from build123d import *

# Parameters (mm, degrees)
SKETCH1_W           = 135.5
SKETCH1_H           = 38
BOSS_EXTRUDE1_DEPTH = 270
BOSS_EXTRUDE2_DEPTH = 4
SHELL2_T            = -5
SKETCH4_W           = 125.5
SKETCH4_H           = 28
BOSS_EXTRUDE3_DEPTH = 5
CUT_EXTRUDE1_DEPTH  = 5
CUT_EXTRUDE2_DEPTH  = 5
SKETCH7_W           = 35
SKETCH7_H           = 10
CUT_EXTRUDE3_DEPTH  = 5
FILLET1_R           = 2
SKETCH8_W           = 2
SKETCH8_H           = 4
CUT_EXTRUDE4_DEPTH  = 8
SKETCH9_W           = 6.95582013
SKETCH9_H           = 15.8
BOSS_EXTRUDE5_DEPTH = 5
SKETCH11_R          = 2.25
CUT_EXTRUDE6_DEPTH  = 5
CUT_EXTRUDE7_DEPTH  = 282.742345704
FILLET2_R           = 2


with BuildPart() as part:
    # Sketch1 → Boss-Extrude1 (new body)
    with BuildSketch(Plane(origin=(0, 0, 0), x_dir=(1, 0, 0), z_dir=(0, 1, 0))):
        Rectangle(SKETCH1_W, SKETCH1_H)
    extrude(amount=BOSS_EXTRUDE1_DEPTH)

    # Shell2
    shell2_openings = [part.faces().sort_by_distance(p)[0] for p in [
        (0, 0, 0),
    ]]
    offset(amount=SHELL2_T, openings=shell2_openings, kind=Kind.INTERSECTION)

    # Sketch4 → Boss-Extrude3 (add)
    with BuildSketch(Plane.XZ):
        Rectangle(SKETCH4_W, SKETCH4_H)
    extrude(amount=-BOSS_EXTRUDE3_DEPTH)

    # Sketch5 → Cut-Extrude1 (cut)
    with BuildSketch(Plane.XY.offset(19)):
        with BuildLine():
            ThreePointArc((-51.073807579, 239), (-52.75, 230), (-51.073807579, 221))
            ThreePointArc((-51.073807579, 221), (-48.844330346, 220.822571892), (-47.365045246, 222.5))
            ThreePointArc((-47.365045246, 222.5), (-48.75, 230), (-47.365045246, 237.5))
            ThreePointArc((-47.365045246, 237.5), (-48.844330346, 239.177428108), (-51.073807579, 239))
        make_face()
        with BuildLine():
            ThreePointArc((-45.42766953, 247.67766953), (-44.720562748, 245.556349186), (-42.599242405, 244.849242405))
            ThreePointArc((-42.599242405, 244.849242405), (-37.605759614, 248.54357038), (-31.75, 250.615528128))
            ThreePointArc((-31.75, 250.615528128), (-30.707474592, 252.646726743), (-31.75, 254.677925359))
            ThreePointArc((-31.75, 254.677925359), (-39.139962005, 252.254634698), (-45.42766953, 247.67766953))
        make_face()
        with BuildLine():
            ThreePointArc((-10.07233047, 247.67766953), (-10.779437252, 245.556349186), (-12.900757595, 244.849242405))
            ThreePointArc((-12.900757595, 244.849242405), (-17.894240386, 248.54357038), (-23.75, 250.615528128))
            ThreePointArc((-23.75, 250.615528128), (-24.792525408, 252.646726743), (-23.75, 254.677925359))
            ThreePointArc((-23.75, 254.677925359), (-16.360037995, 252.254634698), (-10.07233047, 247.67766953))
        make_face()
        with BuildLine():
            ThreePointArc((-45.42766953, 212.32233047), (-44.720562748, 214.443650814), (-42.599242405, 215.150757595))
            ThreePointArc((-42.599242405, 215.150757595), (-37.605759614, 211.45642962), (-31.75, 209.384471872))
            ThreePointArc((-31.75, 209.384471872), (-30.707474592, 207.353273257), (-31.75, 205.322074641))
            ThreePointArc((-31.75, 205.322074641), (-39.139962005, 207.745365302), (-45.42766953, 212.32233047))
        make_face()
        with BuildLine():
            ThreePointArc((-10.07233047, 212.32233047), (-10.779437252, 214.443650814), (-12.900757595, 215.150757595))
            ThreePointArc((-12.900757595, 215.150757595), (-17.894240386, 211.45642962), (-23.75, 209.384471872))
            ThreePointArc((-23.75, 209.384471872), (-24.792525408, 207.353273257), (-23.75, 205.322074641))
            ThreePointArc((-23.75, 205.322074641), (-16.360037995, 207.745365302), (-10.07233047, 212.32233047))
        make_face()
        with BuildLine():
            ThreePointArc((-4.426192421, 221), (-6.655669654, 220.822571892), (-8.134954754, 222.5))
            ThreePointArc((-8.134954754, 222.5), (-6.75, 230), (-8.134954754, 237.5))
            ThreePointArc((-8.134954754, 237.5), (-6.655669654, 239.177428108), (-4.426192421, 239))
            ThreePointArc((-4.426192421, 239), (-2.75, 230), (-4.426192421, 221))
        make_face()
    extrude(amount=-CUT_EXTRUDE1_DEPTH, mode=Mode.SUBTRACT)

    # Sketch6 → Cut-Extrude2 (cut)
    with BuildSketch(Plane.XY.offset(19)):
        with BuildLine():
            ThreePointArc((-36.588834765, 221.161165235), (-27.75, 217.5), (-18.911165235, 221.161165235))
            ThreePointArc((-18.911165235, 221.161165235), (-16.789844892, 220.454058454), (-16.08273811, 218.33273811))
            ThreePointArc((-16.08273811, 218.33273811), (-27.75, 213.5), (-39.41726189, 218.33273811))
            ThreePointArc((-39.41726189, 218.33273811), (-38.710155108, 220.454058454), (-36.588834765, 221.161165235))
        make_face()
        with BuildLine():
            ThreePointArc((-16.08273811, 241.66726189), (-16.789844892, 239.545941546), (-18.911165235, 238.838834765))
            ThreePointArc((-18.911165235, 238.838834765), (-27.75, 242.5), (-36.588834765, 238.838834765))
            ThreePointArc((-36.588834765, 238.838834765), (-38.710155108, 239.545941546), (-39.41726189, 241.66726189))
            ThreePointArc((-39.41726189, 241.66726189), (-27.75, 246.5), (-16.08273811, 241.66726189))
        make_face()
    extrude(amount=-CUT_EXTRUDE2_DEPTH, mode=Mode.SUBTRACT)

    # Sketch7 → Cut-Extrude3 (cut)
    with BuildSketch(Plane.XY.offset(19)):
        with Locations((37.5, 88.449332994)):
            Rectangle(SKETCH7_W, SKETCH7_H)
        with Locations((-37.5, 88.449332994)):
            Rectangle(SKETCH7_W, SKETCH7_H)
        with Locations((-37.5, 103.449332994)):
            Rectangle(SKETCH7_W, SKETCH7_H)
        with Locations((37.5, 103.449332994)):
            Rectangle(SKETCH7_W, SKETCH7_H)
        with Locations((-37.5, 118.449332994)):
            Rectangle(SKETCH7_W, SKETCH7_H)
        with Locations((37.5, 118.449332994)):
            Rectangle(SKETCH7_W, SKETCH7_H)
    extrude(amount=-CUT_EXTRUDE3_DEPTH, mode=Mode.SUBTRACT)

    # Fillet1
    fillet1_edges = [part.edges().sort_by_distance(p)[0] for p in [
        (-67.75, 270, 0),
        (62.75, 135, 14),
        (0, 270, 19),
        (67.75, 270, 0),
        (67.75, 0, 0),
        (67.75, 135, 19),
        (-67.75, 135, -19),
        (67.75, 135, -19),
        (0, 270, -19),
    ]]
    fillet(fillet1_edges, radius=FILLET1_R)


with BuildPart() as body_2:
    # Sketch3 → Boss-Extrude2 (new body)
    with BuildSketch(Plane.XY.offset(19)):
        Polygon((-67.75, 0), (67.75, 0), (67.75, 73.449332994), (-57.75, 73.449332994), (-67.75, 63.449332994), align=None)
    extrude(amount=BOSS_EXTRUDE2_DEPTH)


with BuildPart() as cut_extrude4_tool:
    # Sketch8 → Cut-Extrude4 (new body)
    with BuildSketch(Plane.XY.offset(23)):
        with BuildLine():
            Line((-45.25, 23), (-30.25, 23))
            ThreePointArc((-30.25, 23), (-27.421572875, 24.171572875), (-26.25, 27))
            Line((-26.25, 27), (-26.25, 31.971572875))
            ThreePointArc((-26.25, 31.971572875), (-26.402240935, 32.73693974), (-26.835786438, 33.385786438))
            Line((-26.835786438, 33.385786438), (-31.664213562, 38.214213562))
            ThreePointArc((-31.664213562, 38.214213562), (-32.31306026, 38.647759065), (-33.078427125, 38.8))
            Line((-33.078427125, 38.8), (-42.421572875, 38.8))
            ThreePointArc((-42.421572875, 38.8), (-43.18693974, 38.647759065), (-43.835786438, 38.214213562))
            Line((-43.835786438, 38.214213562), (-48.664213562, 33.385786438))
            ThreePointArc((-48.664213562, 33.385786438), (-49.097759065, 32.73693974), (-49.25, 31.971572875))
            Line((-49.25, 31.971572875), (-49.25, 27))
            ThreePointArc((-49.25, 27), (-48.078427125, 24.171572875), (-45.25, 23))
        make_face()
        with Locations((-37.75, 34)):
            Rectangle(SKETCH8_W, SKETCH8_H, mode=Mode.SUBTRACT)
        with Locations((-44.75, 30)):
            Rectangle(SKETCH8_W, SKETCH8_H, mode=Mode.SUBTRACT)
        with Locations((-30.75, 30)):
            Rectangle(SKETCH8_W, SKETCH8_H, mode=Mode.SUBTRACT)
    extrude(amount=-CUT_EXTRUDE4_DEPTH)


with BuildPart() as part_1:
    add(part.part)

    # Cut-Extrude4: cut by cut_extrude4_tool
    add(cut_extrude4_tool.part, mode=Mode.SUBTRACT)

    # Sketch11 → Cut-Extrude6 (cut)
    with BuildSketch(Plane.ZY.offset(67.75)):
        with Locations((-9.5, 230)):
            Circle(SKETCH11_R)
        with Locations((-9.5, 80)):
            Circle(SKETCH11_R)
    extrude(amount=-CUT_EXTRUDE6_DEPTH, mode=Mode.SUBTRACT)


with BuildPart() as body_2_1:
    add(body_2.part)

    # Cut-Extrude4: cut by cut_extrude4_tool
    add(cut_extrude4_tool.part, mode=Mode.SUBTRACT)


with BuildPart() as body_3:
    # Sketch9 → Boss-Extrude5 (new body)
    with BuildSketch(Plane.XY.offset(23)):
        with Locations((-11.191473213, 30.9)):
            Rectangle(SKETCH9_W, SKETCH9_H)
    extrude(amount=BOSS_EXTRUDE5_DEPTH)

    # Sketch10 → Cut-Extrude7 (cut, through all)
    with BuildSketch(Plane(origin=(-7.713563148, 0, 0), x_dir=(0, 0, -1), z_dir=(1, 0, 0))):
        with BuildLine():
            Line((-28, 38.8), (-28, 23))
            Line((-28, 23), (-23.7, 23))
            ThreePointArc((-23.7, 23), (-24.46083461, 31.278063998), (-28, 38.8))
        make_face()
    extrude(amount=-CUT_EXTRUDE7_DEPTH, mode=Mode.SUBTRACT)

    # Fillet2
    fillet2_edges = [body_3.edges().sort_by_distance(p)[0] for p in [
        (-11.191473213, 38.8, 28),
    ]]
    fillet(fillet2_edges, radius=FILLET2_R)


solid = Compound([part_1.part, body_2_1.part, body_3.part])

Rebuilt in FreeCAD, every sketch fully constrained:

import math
import FreeCAD as App
import Part
import Sketcher
from FreeCAD import Vector
Q = App.Units.Quantity


def edges_at(feature, points):
    """Names of the edges that pass closest to the given points."""
    edges = feature.Shape.Edges
    near = lambda p: min(range(len(edges)), key=lambda i: edges[i].distToShape(Part.Vertex(*p))[0])
    return sorted({f"Edge{near(p) + 1}" for p in points})


def faces_at(feature, points):
    """Names of the faces that lie closest to the given points."""
    faces = feature.Shape.Faces
    near = lambda p: min(range(len(faces)), key=lambda i: faces[i].distToShape(Part.Vertex(*p))[0])
    return sorted({f"Face{near(p) + 1}" for p in points})

doc = App.newDocument("Part")
body = doc.addObject("PartDesign::Body", "Body")

# Sketch on XZ plane
sketch1 = body.newObject("Sketcher::SketchObject", "Sketch")
sketch1.AttachmentSupport = (doc.getObject("XZ_Plane"), [""])
sketch1.MapMode = "FlatFace"
sketch1.addGeometry(Part.LineSegment(Vector(-67.75, -19, 0), Vector(-67.75, 19, 0)), False)
sketch1.addGeometry(Part.LineSegment(Vector(-67.75, 19, 0), Vector(67.75, 19, 0)), False)
sketch1.addGeometry(Part.LineSegment(Vector(67.75, 19, 0), Vector(67.75, -19, 0)), False)
sketch1.addGeometry(Part.LineSegment(Vector(67.75, -19, 0), Vector(-67.75, -19, 0)), False)
sketch1.addConstraint(Sketcher.Constraint("Coincident", 0, 2, 1, 1))
sketch1.addConstraint(Sketcher.Constraint("Coincident", 1, 2, 2, 1))
sketch1.addConstraint(Sketcher.Constraint("Coincident", 2, 2, 3, 1))
sketch1.addConstraint(Sketcher.Constraint("Coincident", 3, 2, 0, 1))
sketch1.addConstraint(Sketcher.Constraint("Vertical", 0))
sketch1.addConstraint(Sketcher.Constraint("Horizontal", 1))
sketch1.addConstraint(Sketcher.Constraint("Vertical", 2))
sketch1.addConstraint(Sketcher.Constraint("Horizontal", 3))
sketch1.addConstraint(Sketcher.Constraint("Symmetric", 0, 2, 2, 2, -1, 1))
sketch1.addConstraint(Sketcher.Constraint("DistanceY", 0, 1, 0, 2, 38.0))
sketch1.addConstraint(Sketcher.Constraint("DistanceX", 1, 1, 1, 2, 135.5))
pad1 = body.newObject("PartDesign::Pad", "Pad")
pad1.Profile = sketch1
pad1.Length = 270
pad1.Reversed = True
doc.recompute()

thickness = body.newObject("PartDesign::Thickness", "Thickness")
thickness.Base = (pad1, faces_at(pad1, [(0, 0, 0)]))
thickness.Value = 5
thickness.Reversed = True
thickness.Join = "Intersection"

# Sketch on XZ plane
sketch2 = body.newObject("Sketcher::SketchObject", "Sketch001")
sketch2.AttachmentSupport = (doc.getObject("XZ_Plane"), [""])
sketch2.MapMode = "FlatFace"
sketch2.addGeometry(Part.LineSegment(Vector(-62.75, 14, 0), Vector(-62.75, -14, 0)), False)
sketch2.addGeometry(Part.LineSegment(Vector(-62.75, -14, 0), Vector(62.75, -14, 0)), False)
sketch2.addGeometry(Part.LineSegment(Vector(62.75, -14, 0), Vector(62.75, 14, 0)), False)
sketch2.addGeometry(Part.LineSegment(Vector(62.75, 14, 0), Vector(-62.75, 14, 0)), False)
sketch2.addConstraint(Sketcher.Constraint("Coincident", 0, 2, 1, 1))
sketch2.addConstraint(Sketcher.Constraint("Coincident", 1, 2, 2, 1))
sketch2.addConstraint(Sketcher.Constraint("Coincident", 2, 2, 3, 1))
sketch2.addConstraint(Sketcher.Constraint("Coincident", 3, 2, 0, 1))
sketch2.addConstraint(Sketcher.Constraint("Vertical", 0))
sketch2.addConstraint(Sketcher.Constraint("Horizontal", 1))
sketch2.addConstraint(Sketcher.Constraint("Vertical", 2))
sketch2.addConstraint(Sketcher.Constraint("Horizontal", 3))
sketch2.addConstraint(Sketcher.Constraint("Symmetric", 0, 2, 2, 2, -1, 1))
sketch2.addConstraint(Sketcher.Constraint("DistanceY", 0, 2, 0, 1, 28.0))
sketch2.addConstraint(Sketcher.Constraint("DistanceX", 1, 1, 1, 2, 125.5))
pad2 = body.newObject("PartDesign::Pad", "Pad001")
pad2.Profile = sketch2
pad2.Length = 5
pad2.Reversed = True

# Sketch on XY plane
sketch3 = body.newObject("Sketcher::SketchObject", "Sketch002")
sketch3.AttachmentSupport = (doc.getObject("XY_Plane"), [""])
sketch3.MapMode = "FlatFace"
sketch3.AttachmentOffset = App.Placement(Vector(0, 0, 19), App.Rotation())
sketch3.addGeometry(Part.ArcOfCircle(Part.Circle(Vector(-27.75, 230, 0), Vector(0, 0, 1), 25), math.radians(158.899804), math.radians(201.100196)), False)
sketch3.addGeometry(Part.ArcOfCircle(Part.Circle(Vector(-49.781686, 223.140192, 0), Vector(0, 0, 1), 2.5), math.radians(-121.121092), math.radians(-14.837404)), False)
sketch3.addGeometry(Part.ArcOfCircle(Part.Circle(Vector(-27.75, 230, 0), Vector(0, 0, 1), 21), math.radians(159.075168), math.radians(200.924832)), False)
sketch3.addGeometry(Part.ArcOfCircle(Part.Circle(Vector(-49.781686, 236.859808, 0), Vector(0, 0, 1), 2.5), math.radians(14.837404), math.radians(121.121092)), False)
sketch3.addGeometry(Part.ArcOfCircle(Part.Circle(Vector(-42.952796, 247.324116, 0), Vector(0, 0, 1), 2.5), math.radians(171.869898), math.radians(278.130102)), False)
sketch3.addGeometry(Part.ArcOfCircle(Part.Circle(Vector(-27.75, 230, 0), Vector(0, 0, 1), 21), math.radians(100.980575), math.radians(135)), False)
sketch3.addGeometry(Part.ArcOfCircle(Part.Circle(Vector(-33.207475, 252.646727, 0), Vector(0, 0, 1), 2.5), math.radians(-54.338892), math.radians(54.338892)), False)
sketch3.addGeometry(Part.ArcOfCircle(Part.Circle(Vector(-27.75, 230, 0), Vector(0, 0, 1), 25), math.radians(99.206896), math.radians(135)), False)
sketch3.addGeometry(Part.ArcOfCircle(Part.Circle(Vector(-12.547204, 247.324116, 0), Vector(0, 0, 1), 2.5), math.radians(-98.130102), math.radians(8.130102)), False)
sketch3.addGeometry(Part.ArcOfCircle(Part.Circle(Vector(-27.75, 230, 0), Vector(0, 0, 1), 25), math.radians(45), math.radians(80.793104)), False)
sketch3.addGeometry(Part.ArcOfCircle(Part.Circle(Vector(-22.292525, 252.646727, 0), Vector(0, 0, 1), 2.5), math.radians(125.661108), math.radians(234.338892)), False)
sketch3.addGeometry(Part.ArcOfCircle(Part.Circle(Vector(-27.75, 230, 0), Vector(0, 0, 1), 21), math.radians(45), math.radians(79.019425)), False)
sketch3.addGeometry(Part.ArcOfCircle(Part.Circle(Vector(-42.952796, 212.675884, 0), Vector(0, 0, 1), 2.5), math.radians(81.869898), math.radians(188.130102)), False)
sketch3.addGeometry(Part.ArcOfCircle(Part.Circle(Vector(-27.75, 230, 0), Vector(0, 0, 1), 25), math.radians(-135), math.radians(-99.206896)), False)
sketch3.addGeometry(Part.ArcOfCircle(Part.Circle(Vector(-33.207475, 207.353273, 0), Vector(0, 0, 1), 2.5), math.radians(-54.338892), math.radians(54.338892)), False)
sketch3.addGeometry(Part.ArcOfCircle(Part.Circle(Vector(-27.75, 230, 0), Vector(0, 0, 1), 21), math.radians(-135), math.radians(-100.980575)), False)
sketch3.addGeometry(Part.ArcOfCircle(Part.Circle(Vector(-12.547204, 212.675884, 0), Vector(0, 0, 1), 2.5), math.radians(-8.130102), math.radians(98.130102)), False)
sketch3.addGeometry(Part.ArcOfCircle(Part.Circle(Vector(-27.75, 230, 0), Vector(0, 0, 1), 21), math.radians(-79.019425), math.radians(-45)), False)
sketch3.addGeometry(Part.ArcOfCircle(Part.Circle(Vector(-22.292525, 207.353273, 0), Vector(0, 0, 1), 2.5), math.radians(125.661108), math.radians(234.338892)), False)
sketch3.addGeometry(Part.ArcOfCircle(Part.Circle(Vector(-27.75, 230, 0), Vector(0, 0, 1), 25), math.radians(-80.793104), math.radians(-45)), False)
sketch3.addGeometry(Part.ArcOfCircle(Part.Circle(Vector(-5.718314, 223.140192, 0), Vector(0, 0, 1), 2.5), math.radians(-165.162596), math.radians(-58.878908)), False)
sketch3.addGeometry(Part.ArcOfCircle(Part.Circle(Vector(-27.75, 230, 0), Vector(0, 0, 1), 25), math.radians(-21.100196), math.radians(21.100196)), False)
sketch3.addGeometry(Part.ArcOfCircle(Part.Circle(Vector(-5.718314, 236.859808, 0), Vector(0, 0, 1), 2.5), math.radians(58.878908), math.radians(165.162596)), False)
sketch3.addGeometry(Part.ArcOfCircle(Part.Circle(Vector(-27.75, 230, 0), Vector(0, 0, 1), 21), math.radians(-20.924832), math.radians(20.924832)), False)
sketch3.addConstraint(Sketcher.Constraint("Coincident", 0, 2, 1, 1))
sketch3.addConstraint(Sketcher.Constraint("Coincident", 1, 2, 2, 2))
sketch3.addConstraint(Sketcher.Constraint("Coincident", 2, 1, 3, 1))
sketch3.addConstraint(Sketcher.Constraint("Coincident", 3, 2, 0, 1))
sketch3.addConstraint(Sketcher.Constraint("Coincident", 4, 2, 5, 2))
sketch3.addConstraint(Sketcher.Constraint("Coincident", 5, 1, 6, 1))
sketch3.addConstraint(Sketcher.Constraint("Coincident", 6, 2, 7, 1))
sketch3.addConstraint(Sketcher.Constraint("Coincident", 7, 2, 4, 1))
sketch3.addConstraint(Sketcher.Constraint("Coincident", 8, 2, 9, 1))
sketch3.addConstraint(Sketcher.Constraint("Coincident", 9, 2, 10, 1))
sketch3.addConstraint(Sketcher.Constraint("Coincident", 10, 2, 11, 2))
sketch3.addConstraint(Sketcher.Constraint("Coincident", 11, 1, 8, 1))
sketch3.addConstraint(Sketcher.Constraint("Coincident", 12, 2, 13, 1))
sketch3.addConstraint(Sketcher.Constraint("Coincident", 13, 2, 14, 1))
sketch3.addConstraint(Sketcher.Constraint("Coincident", 14, 2, 15, 2))
sketch3.addConstraint(Sketcher.Constraint("Coincident", 15, 1, 12, 1))
sketch3.addConstraint(Sketcher.Constraint("Coincident", 16, 2, 17, 2))
sketch3.addConstraint(Sketcher.Constraint("Coincident", 17, 1, 18, 1))
sketch3.addConstraint(Sketcher.Constraint("Coincident", 18, 2, 19, 1))
sketch3.addConstraint(Sketcher.Constraint("Coincident", 19, 2, 16, 1))
sketch3.addConstraint(Sketcher.Constraint("Coincident", 20, 2, 21, 1))
sketch3.addConstraint(Sketcher.Constraint("Coincident", 21, 2, 22, 1))
sketch3.addConstraint(Sketcher.Constraint("Coincident", 22, 2, 23, 2))
sketch3.addConstraint(Sketcher.Constraint("Coincident", 23, 1, 20, 1))
sketch3.addConstraint(Sketcher.Constraint("Coincident", 2, 3, 0, 3))
sketch3.addConstraint(Sketcher.Constraint("Coincident", 5, 3, 0, 3))
sketch3.addConstraint(Sketcher.Constraint("Coincident", 7, 3, 0, 3))
sketch3.addConstraint(Sketcher.Constraint("Coincident", 9, 3, 0, 3))
sketch3.addConstraint(Sketcher.Constraint("Coincident", 11, 3, 0, 3))
sketch3.addConstraint(Sketcher.Constraint("Coincident", 13, 3, 0, 3))
sketch3.addConstraint(Sketcher.Constraint("Coincident", 15, 3, 0, 3))
sketch3.addConstraint(Sketcher.Constraint("Coincident", 17, 3, 0, 3))
sketch3.addConstraint(Sketcher.Constraint("Coincident", 19, 3, 0, 3))
sketch3.addConstraint(Sketcher.Constraint("Coincident", 21, 3, 0, 3))
sketch3.addConstraint(Sketcher.Constraint("Coincident", 23, 3, 0, 3))
sketch3.addConstraint(Sketcher.Constraint("Equal", 1, 3))
sketch3.addConstraint(Sketcher.Constraint("Equal", 3, 4))
sketch3.addConstraint(Sketcher.Constraint("Equal", 2, 5))
sketch3.addConstraint(Sketcher.Constraint("Equal", 4, 6))
sketch3.addConstraint(Sketcher.Constraint("Equal", 0, 7))
sketch3.addConstraint(Sketcher.Constraint("Equal", 6, 8))
sketch3.addConstraint(Sketcher.Constraint("Equal", 7, 9))
sketch3.addConstraint(Sketcher.Constraint("Equal", 8, 10))
sketch3.addConstraint(Sketcher.Constraint("Equal", 5, 11))
sketch3.addConstraint(Sketcher.Constraint("Equal", 10, 12))
sketch3.addConstraint(Sketcher.Constraint("Equal", 9, 13))
sketch3.addConstraint(Sketcher.Constraint("Equal", 12, 14))
sketch3.addConstraint(Sketcher.Constraint("Equal", 11, 15))
sketch3.addConstraint(Sketcher.Constraint("Equal", 14, 16))
sketch3.addConstraint(Sketcher.Constraint("Equal", 15, 17))
sketch3.addConstraint(Sketcher.Constraint("Equal", 16, 18))
sketch3.addConstraint(Sketcher.Constraint("Equal", 13, 19))
sketch3.addConstraint(Sketcher.Constraint("Equal", 18, 20))
sketch3.addConstraint(Sketcher.Constraint("Equal", 19, 21))
sketch3.addConstraint(Sketcher.Constraint("Equal", 20, 22))
sketch3.addConstraint(Sketcher.Constraint("Equal", 17, 23))
sketch3.addConstraint(Sketcher.Constraint("Horizontal", 4, 3, 8, 3))
sketch3.addConstraint(Sketcher.Constraint("Horizontal", 6, 3, 10, 3))
sketch3.addConstraint(Sketcher.Constraint("Horizontal", 12, 3, 16, 3))
sketch3.addConstraint(Sketcher.Constraint("Horizontal", 14, 3, 18, 3))
sketch3.addConstraint(Sketcher.Constraint("Horizontal", 1, 3, 20, 3))
sketch3.addConstraint(Sketcher.Constraint("Horizontal", 3, 3, 22, 3))
sketch3.addConstraint(Sketcher.Constraint("Horizontal", 7, 2, 8, 2))
sketch3.addConstraint(Sketcher.Constraint("Horizontal", 6, 2, 9, 2))
sketch3.addConstraint(Sketcher.Constraint("Horizontal", 15, 1, 16, 2))
sketch3.addConstraint(Sketcher.Constraint("Horizontal", 14, 2, 17, 1))
sketch3.addConstraint(Sketcher.Constraint("Horizontal", 0, 2, 20, 2))
sketch3.addConstraint(Sketcher.Constraint("Horizontal", 3, 2, 21, 2))
sketch3.addConstraint(Sketcher.Constraint("Vertical", 1, 3, 3, 3))
sketch3.addConstraint(Sketcher.Constraint("Vertical", 4, 3, 12, 3))
sketch3.addConstraint(Sketcher.Constraint("Vertical", 6, 3, 14, 3))
sketch3.addConstraint(Sketcher.Constraint("Vertical", 1, 2, 2, 1))
sketch3.addConstraint(Sketcher.Constraint("Vertical", 5, 1, 6, 2))
sketch3.addConstraint(Sketcher.Constraint("Vertical", 7, 2, 12, 2))
sketch3.addConstraint(Sketcher.Constraint("Vertical", 6, 2, 13, 2))
sketch3.addConstraint(Sketcher.Constraint("Radius", 0, 25.0))
sketch3.addConstraint(Sketcher.Constraint("Radius", 2, 21.0))
sketch3.addConstraint(Sketcher.Constraint("Radius", 1, 2.5))
sketch3.addConstraint(Sketcher.Constraint("DistanceY", -1, 1, 0, 3, 230.0))
sketch3.addConstraint(Sketcher.Constraint("DistanceY", -1, 1, 0, 2, 221.0))
sketch3.addConstraint(Sketcher.Constraint("DistanceY", 1, 2, 2, 1, 15.0))
sketch3.addConstraint(Sketcher.Constraint("DistanceX", 6, 2, 9, 2, 8.0))
sketch3.addConstraint(Sketcher.Constraint("DistanceX", 0, 3, -1, 1, 27.75))
sketch3.addConstraint(Sketcher.Constraint("DistanceX", 7, 2, -1, 1, 45.42767))
sketch3.addConstraint(Sketcher.Constraint("DistanceX", 3, 3, 4, 3, 6.828891))
pocket1 = body.newObject("PartDesign::Pocket", "Pocket")
pocket1.Profile = sketch3
pocket1.Length = 5

# Sketch on XY plane
sketch4 = body.newObject("Sketcher::SketchObject", "Sketch003")
sketch4.AttachmentSupport = (doc.getObject("XY_Plane"), [""])
sketch4.MapMode = "FlatFace"
sketch4.AttachmentOffset = App.Placement(Vector(0, 0, 19), App.Rotation())
sketch4.addGeometry(Part.ArcOfCircle(Part.Circle(Vector(-27.75, 230, 0), Vector(0, 0, 1), 12.5), math.radians(-135), math.radians(-45)), False)
sketch4.addGeometry(Part.ArcOfCircle(Part.Circle(Vector(-36.942388, 218.686292, 0), Vector(0, 0, 1), 2.5), math.radians(81.869898), math.radians(188.130102)), False)
sketch4.addGeometry(Part.ArcOfCircle(Part.Circle(Vector(-27.75, 230, 0), Vector(0, 0, 1), 16.5), math.radians(-135), math.radians(-45)), False)
sketch4.addGeometry(Part.ArcOfCircle(Part.Circle(Vector(-18.557612, 218.686292, 0), Vector(0, 0, 1), 2.5), math.radians(-8.130102), math.radians(98.130102)), False)
sketch4.addGeometry(Part.ArcOfCircle(Part.Circle(Vector(-18.557612, 241.313708, 0), Vector(0, 0, 1), 2.5), math.radians(-98.130102), math.radians(8.130102)), False)
sketch4.addGeometry(Part.ArcOfCircle(Part.Circle(Vector(-27.75, 230, 0), Vector(0, 0, 1), 16.5), math.radians(45), math.radians(135)), False)
sketch4.addGeometry(Part.ArcOfCircle(Part.Circle(Vector(-36.942388, 241.313708, 0), Vector(0, 0, 1), 2.5), math.radians(171.869898), math.radians(278.130102)), False)
sketch4.addGeometry(Part.ArcOfCircle(Part.Circle(Vector(-27.75, 230, 0), Vector(0, 0, 1), 12.5), math.radians(45), math.radians(135)), False)
sketch4.addConstraint(Sketcher.Constraint("Coincident", 0, 1, 1, 1))
sketch4.addConstraint(Sketcher.Constraint("Coincident", 1, 2, 2, 1))
sketch4.addConstraint(Sketcher.Constraint("Coincident", 2, 2, 3, 1))
sketch4.addConstraint(Sketcher.Constraint("Coincident", 3, 2, 0, 2))
sketch4.addConstraint(Sketcher.Constraint("Coincident", 4, 2, 5, 1))
sketch4.addConstraint(Sketcher.Constraint("Coincident", 5, 2, 6, 1))
sketch4.addConstraint(Sketcher.Constraint("Coincident", 6, 2, 7, 2))
sketch4.addConstraint(Sketcher.Constraint("Coincident", 7, 1, 4, 1))
sketch4.addConstraint(Sketcher.Constraint("Coincident", 2, 3, 0, 3))
sketch4.addConstraint(Sketcher.Constraint("Coincident", 5, 3, 0, 3))
sketch4.addConstraint(Sketcher.Constraint("Coincident", 7, 3, 0, 3))
sketch4.addConstraint(Sketcher.Constraint("Equal", 1, 3))
sketch4.addConstraint(Sketcher.Constraint("Equal", 3, 4))
sketch4.addConstraint(Sketcher.Constraint("Equal", 2, 5))
sketch4.addConstraint(Sketcher.Constraint("Equal", 4, 6))
sketch4.addConstraint(Sketcher.Constraint("Equal", 0, 7))
sketch4.addConstraint(Sketcher.Constraint("Horizontal", 1, 3, 3, 3))
sketch4.addConstraint(Sketcher.Constraint("Horizontal", 4, 3, 6, 3))
sketch4.addConstraint(Sketcher.Constraint("Horizontal", 1, 2, 2, 2))
sketch4.addConstraint(Sketcher.Constraint("Horizontal", 4, 2, 5, 2))
sketch4.addConstraint(Sketcher.Constraint("Vertical", 3, 3, 4, 3))
sketch4.addConstraint(Sketcher.Constraint("Vertical", 2, 2, 4, 2))
sketch4.addConstraint(Sketcher.Constraint("Radius", 0, 12.5))
sketch4.addConstraint(Sketcher.Constraint("Radius", 1, 2.5))
sketch4.addConstraint(Sketcher.Constraint("Radius", 2, 16.5))
sketch4.addConstraint(Sketcher.Constraint("DistanceY", -1, 1, 0, 3, 230.0))
sketch4.addConstraint(Sketcher.Constraint("DistanceX", 0, 3, -1, 1, 27.75))
sketch4.addConstraint(Sketcher.Constraint("DistanceX", 1, 3, -1, 1, 36.942388))
sketch4.addConstraint(Sketcher.Constraint("DistanceY", -1, 1, 1, 3, 218.686292))
pocket2 = body.newObject("PartDesign::Pocket", "Pocket001")
pocket2.Profile = sketch4
pocket2.Length = 5

# Sketch on XY plane
sketch5 = body.newObject("Sketcher::SketchObject", "Sketch004")
sketch5.AttachmentSupport = (doc.getObject("XY_Plane"), [""])
sketch5.MapMode = "FlatFace"
sketch5.AttachmentOffset = App.Placement(Vector(0, 0, 19), App.Rotation())
sketch5.addGeometry(Part.LineSegment(Vector(20, 93.449333, 0), Vector(20, 83.449333, 0)), False)
sketch5.addGeometry(Part.LineSegment(Vector(20, 83.449333, 0), Vector(55, 83.449333, 0)), False)
sketch5.addGeometry(Part.LineSegment(Vector(55, 83.449333, 0), Vector(55, 93.449333, 0)), False)
sketch5.addGeometry(Part.LineSegment(Vector(55, 93.449333, 0), Vector(20, 93.449333, 0)), False)
sketch5.addGeometry(Part.LineSegment(Vector(-55, 93.449333, 0), Vector(-55, 83.449333, 0)), False)
sketch5.addGeometry(Part.LineSegment(Vector(-55, 83.449333, 0), Vector(-20, 83.449333, 0)), False)
sketch5.addGeometry(Part.LineSegment(Vector(-20, 83.449333, 0), Vector(-20, 93.449333, 0)), False)
sketch5.addGeometry(Part.LineSegment(Vector(-20, 93.449333, 0), Vector(-55, 93.449333, 0)), False)
sketch5.addGeometry(Part.LineSegment(Vector(-55, 108.449333, 0), Vector(-55, 98.449333, 0)), False)
sketch5.addGeometry(Part.LineSegment(Vector(-55, 98.449333, 0), Vector(-20, 98.449333, 0)), False)
sketch5.addGeometry(Part.LineSegment(Vector(-20, 98.449333, 0), Vector(-20, 108.449333, 0)), False)
sketch5.addGeometry(Part.LineSegment(Vector(-20, 108.449333, 0), Vector(-55, 108.449333, 0)), False)
sketch5.addGeometry(Part.LineSegment(Vector(20, 108.449333, 0), Vector(20, 98.449333, 0)), False)
sketch5.addGeometry(Part.LineSegment(Vector(20, 98.449333, 0), Vector(55, 98.449333, 0)), False)
sketch5.addGeometry(Part.LineSegment(Vector(55, 98.449333, 0), Vector(55, 108.449333, 0)), False)
sketch5.addGeometry(Part.LineSegment(Vector(55, 108.449333, 0), Vector(20, 108.449333, 0)), False)
sketch5.addGeometry(Part.LineSegment(Vector(-55, 123.449333, 0), Vector(-55, 113.449333, 0)), False)
sketch5.addGeometry(Part.LineSegment(Vector(-55, 113.449333, 0), Vector(-20, 113.449333, 0)), False)
sketch5.addGeometry(Part.LineSegment(Vector(-20, 113.449333, 0), Vector(-20, 123.449333, 0)), False)
sketch5.addGeometry(Part.LineSegment(Vector(-20, 123.449333, 0), Vector(-55, 123.449333, 0)), False)
sketch5.addGeometry(Part.LineSegment(Vector(20, 123.449333, 0), Vector(20, 113.449333, 0)), False)
sketch5.addGeometry(Part.LineSegment(Vector(20, 113.449333, 0), Vector(55, 113.449333, 0)), False)
sketch5.addGeometry(Part.LineSegment(Vector(55, 113.449333, 0), Vector(55, 123.449333, 0)), False)
sketch5.addGeometry(Part.LineSegment(Vector(55, 123.449333, 0), Vector(20, 123.449333, 0)), False)
sketch5.addConstraint(Sketcher.Constraint("Coincident", 0, 2, 1, 1))
sketch5.addConstraint(Sketcher.Constraint("Coincident", 1, 2, 2, 1))
sketch5.addConstraint(Sketcher.Constraint("Coincident", 2, 2, 3, 1))
sketch5.addConstraint(Sketcher.Constraint("Coincident", 3, 2, 0, 1))
sketch5.addConstraint(Sketcher.Constraint("Coincident", 4, 2, 5, 1))
sketch5.addConstraint(Sketcher.Constraint("Coincident", 5, 2, 6, 1))
sketch5.addConstraint(Sketcher.Constraint("Coincident", 6, 2, 7, 1))
sketch5.addConstraint(Sketcher.Constraint("Coincident", 7, 2, 4, 1))
sketch5.addConstraint(Sketcher.Constraint("Coincident", 8, 2, 9, 1))
sketch5.addConstraint(Sketcher.Constraint("Coincident", 9, 2, 10, 1))
sketch5.addConstraint(Sketcher.Constraint("Coincident", 10, 2, 11, 1))
sketch5.addConstraint(Sketcher.Constraint("Coincident", 11, 2, 8, 1))
sketch5.addConstraint(Sketcher.Constraint("Coincident", 12, 2, 13, 1))
sketch5.addConstraint(Sketcher.Constraint("Coincident", 13, 2, 14, 1))
sketch5.addConstraint(Sketcher.Constraint("Coincident", 14, 2, 15, 1))
sketch5.addConstraint(Sketcher.Constraint("Coincident", 15, 2, 12, 1))
sketch5.addConstraint(Sketcher.Constraint("Coincident", 16, 2, 17, 1))
sketch5.addConstraint(Sketcher.Constraint("Coincident", 17, 2, 18, 1))
sketch5.addConstraint(Sketcher.Constraint("Coincident", 18, 2, 19, 1))
sketch5.addConstraint(Sketcher.Constraint("Coincident", 19, 2, 16, 1))
sketch5.addConstraint(Sketcher.Constraint("Coincident", 20, 2, 21, 1))
sketch5.addConstraint(Sketcher.Constraint("Coincident", 21, 2, 22, 1))
sketch5.addConstraint(Sketcher.Constraint("Coincident", 22, 2, 23, 1))
sketch5.addConstraint(Sketcher.Constraint("Coincident", 23, 2, 20, 1))
sketch5.addConstraint(Sketcher.Constraint("Vertical", 0))
sketch5.addConstraint(Sketcher.Constraint("Horizontal", 1))
sketch5.addConstraint(Sketcher.Constraint("Vertical", 2))
sketch5.addConstraint(Sketcher.Constraint("Horizontal", 3))
sketch5.addConstraint(Sketcher.Constraint("Vertical", 4))
sketch5.addConstraint(Sketcher.Constraint("Horizontal", 5))
sketch5.addConstraint(Sketcher.Constraint("Vertical", 6))
sketch5.addConstraint(Sketcher.Constraint("Horizontal", 7))
sketch5.addConstraint(Sketcher.Constraint("Vertical", 8))
sketch5.addConstraint(Sketcher.Constraint("Horizontal", 9))
sketch5.addConstraint(Sketcher.Constraint("Vertical", 10))
sketch5.addConstraint(Sketcher.Constraint("Horizontal", 11))
sketch5.addConstraint(Sketcher.Constraint("Vertical", 12))
sketch5.addConstraint(Sketcher.Constraint("Horizontal", 13))
sketch5.addConstraint(Sketcher.Constraint("Vertical", 14))
sketch5.addConstraint(Sketcher.Constraint("Horizontal", 15))
sketch5.addConstraint(Sketcher.Constraint("Vertical", 16))
sketch5.addConstraint(Sketcher.Constraint("Horizontal", 17))
sketch5.addConstraint(Sketcher.Constraint("Vertical", 18))
sketch5.addConstraint(Sketcher.Constraint("Horizontal", 19))
sketch5.addConstraint(Sketcher.Constraint("Vertical", 20))
sketch5.addConstraint(Sketcher.Constraint("Horizontal", 21))
sketch5.addConstraint(Sketcher.Constraint("Vertical", 22))
sketch5.addConstraint(Sketcher.Constraint("Horizontal", 23))
sketch5.addConstraint(Sketcher.Constraint("Symmetric", 1, 2, 4, 2, -2))
sketch5.addConstraint(Sketcher.Constraint("Symmetric", 3, 2, 6, 2, -2))
sketch5.addConstraint(Sketcher.Constraint("Symmetric", 9, 2, 12, 2, -2))
sketch5.addConstraint(Sketcher.Constraint("Symmetric", 11, 2, 14, 2, -2))
sketch5.addConstraint(Sketcher.Constraint("Symmetric", 17, 2, 20, 2, -2))
sketch5.addConstraint(Sketcher.Constraint("Symmetric", 19, 2, 22, 2, -2))
sketch5.addConstraint(Sketcher.Constraint("Vertical", 7, 2, 8, 2))
sketch5.addConstraint(Sketcher.Constraint("Vertical", 6, 2, 9, 2))
sketch5.addConstraint(Sketcher.Constraint("Vertical", 11, 2, 16, 2))
sketch5.addConstraint(Sketcher.Constraint("Vertical", 10, 2, 17, 2))
sketch5.addConstraint(Sketcher.Constraint("Equal", 6, 8))
sketch5.addConstraint(Sketcher.Constraint("Equal", 14, 16))
sketch5.addConstraint(Sketcher.Constraint("DistanceX", 1, 1, 1, 2, 35.0))
sketch5.addConstraint(Sketcher.Constraint("DistanceY", 0, 2, 0, 1, 10.0))
sketch5.addConstraint(Sketcher.Constraint("DistanceX", -1, 1, 0, 2, 20.0))
sketch5.addConstraint(Sketcher.Constraint("DistanceY", 7, 2, 8, 2, 5.0))
sketch5.addConstraint(Sketcher.Constraint("DistanceY", 11, 2, 16, 2, 5.0))
sketch5.addConstraint(Sketcher.Constraint("DistanceY", -1, 1, 0, 2, 83.449333))
pocket3 = body.newObject("PartDesign::Pocket", "Pocket002")
pocket3.Profile = sketch5
pocket3.Length = 5
doc.recompute()

fillet = body.newObject("PartDesign::Fillet", "Fillet")
fillet.Base = (pocket3, edges_at(pocket3, [
    (-67.75, 270, 0),
    (62.75, 135, 14),
    (0, 270, 19),
    (67.75, 270, 0),
    (67.75, 0, 0),
    (67.75, 135, 19),
    (-67.75, 135, -19),
    (67.75, 135, -19),
    (0, 270, -19),
]))
fillet.Radius = 2
body2 = doc.addObject("PartDesign::Body", "Body001")

# Sketch on XY plane
sketch6 = body2.newObject("Sketcher::SketchObject", "Sketch005")
sketch6.AttachmentSupport = (doc.getObject("XY_Plane001"), [""])
sketch6.MapMode = "FlatFace"
sketch6.AttachmentOffset = App.Placement(Vector(0, 0, 19), App.Rotation())
sketch6.addGeometry(Part.LineSegment(Vector(-67.75, 0, 0), Vector(67.75, 0, 0)), False)
sketch6.addGeometry(Part.LineSegment(Vector(67.75, 0, 0), Vector(67.75, 73.449333, 0)), False)
sketch6.addGeometry(Part.LineSegment(Vector(67.75, 73.449333, 0), Vector(-57.75, 73.449333, 0)), False)
sketch6.addGeometry(Part.LineSegment(Vector(-57.75, 73.449333, 0), Vector(-67.75, 63.449333, 0)), False)
sketch6.addGeometry(Part.LineSegment(Vector(-67.75, 63.449333, 0), Vector(-67.75, 0, 0)), False)
sketch6.addConstraint(Sketcher.Constraint("Coincident", 0, 2, 1, 1))
sketch6.addConstraint(Sketcher.Constraint("Coincident", 1, 2, 2, 1))
sketch6.addConstraint(Sketcher.Constraint("Coincident", 2, 2, 3, 1))
sketch6.addConstraint(Sketcher.Constraint("Coincident", 3, 2, 4, 1))
sketch6.addConstraint(Sketcher.Constraint("Coincident", 4, 2, 0, 1))
sketch6.addConstraint(Sketcher.Constraint("Horizontal", 0))
sketch6.addConstraint(Sketcher.Constraint("Vertical", 1))
sketch6.addConstraint(Sketcher.Constraint("Horizontal", 2))
sketch6.addConstraint(Sketcher.Constraint("Vertical", 4))
sketch6.addConstraint(Sketcher.Constraint("Symmetric", 0, 2, 4, 2, -1, 1))
sketch6.addConstraint(Sketcher.Constraint("Angle", 3, Q("-135 deg")))
sketch6.addConstraint(Sketcher.Constraint("DistanceX", 0, 1, 0, 2, 135.5))
sketch6.addConstraint(Sketcher.Constraint("DistanceX", 2, 2, 2, 1, 125.5))
sketch6.addConstraint(Sketcher.Constraint("DistanceY", 1, 1, 1, 2, 73.449333))
pad3 = body2.newObject("PartDesign::Pad", "Pad002")
pad3.Profile = sketch6
pad3.Length = 4
body3 = doc.addObject("PartDesign::Body", "Body002")

# Sketch on XY plane
sketch7 = body3.newObject("Sketcher::SketchObject", "Sketch006")
sketch7.AttachmentSupport = (doc.getObject("XY_Plane002"), [""])
sketch7.MapMode = "FlatFace"
sketch7.AttachmentOffset = App.Placement(Vector(0, 0, 23), App.Rotation())
sketch7.addGeometry(Part.LineSegment(Vector(-45.25, 23, 0), Vector(-30.25, 23, 0)), False)
sketch7.addGeometry(Part.ArcOfCircle(Part.Circle(Vector(-30.25, 27, 0), Vector(0, 0, 1), 4), math.radians(-90), math.radians(0)), False)
sketch7.addGeometry(Part.LineSegment(Vector(-26.25, 27, 0), Vector(-26.25, 31.971573, 0)), False)
sketch7.addGeometry(Part.ArcOfCircle(Part.Circle(Vector(-28.25, 31.971573, 0), Vector(0, 0, 1), 2), math.radians(0), math.radians(45)), False)
sketch7.addGeometry(Part.LineSegment(Vector(-26.835786, 33.385786, 0), Vector(-31.664214, 38.214214, 0)), False)
sketch7.addGeometry(Part.ArcOfCircle(Part.Circle(Vector(-33.078427, 36.8, 0), Vector(0, 0, 1), 2), math.radians(45), math.radians(90)), False)
sketch7.addGeometry(Part.LineSegment(Vector(-33.078427, 38.8, 0), Vector(-42.421573, 38.8, 0)), False)
sketch7.addGeometry(Part.ArcOfCircle(Part.Circle(Vector(-42.421573, 36.8, 0), Vector(0, 0, 1), 2), math.radians(90), math.radians(135)), False)
sketch7.addGeometry(Part.LineSegment(Vector(-43.835786, 38.214214, 0), Vector(-48.664214, 33.385786, 0)), False)
sketch7.addGeometry(Part.ArcOfCircle(Part.Circle(Vector(-47.25, 31.971573, 0), Vector(0, 0, 1), 2), math.radians(135), math.radians(180)), False)
sketch7.addGeometry(Part.LineSegment(Vector(-49.25, 31.971573, 0), Vector(-49.25, 27, 0)), False)
sketch7.addGeometry(Part.ArcOfCircle(Part.Circle(Vector(-45.25, 27, 0), Vector(0, 0, 1), 4), math.radians(180), math.radians(270)), False)
sketch7.addGeometry(Part.LineSegment(Vector(-43.75, 28, 0), Vector(-45.75, 28, 0)), False)
sketch7.addGeometry(Part.LineSegment(Vector(-45.75, 28, 0), Vector(-45.75, 32, 0)), False)
sketch7.addGeometry(Part.LineSegment(Vector(-45.75, 32, 0), Vector(-43.75, 32, 0)), False)
sketch7.addGeometry(Part.LineSegment(Vector(-43.75, 32, 0), Vector(-43.75, 28, 0)), False)
sketch7.addGeometry(Part.LineSegment(Vector(-29.75, 28, 0), Vector(-31.75, 28, 0)), False)
sketch7.addGeometry(Part.LineSegment(Vector(-31.75, 28, 0), Vector(-31.75, 32, 0)), False)
sketch7.addGeometry(Part.LineSegment(Vector(-31.75, 32, 0), Vector(-29.75, 32, 0)), False)
sketch7.addGeometry(Part.LineSegment(Vector(-29.75, 32, 0), Vector(-29.75, 28, 0)), False)
sketch7.addGeometry(Part.LineSegment(Vector(-36.75, 32, 0), Vector(-38.75, 32, 0)), False)
sketch7.addGeometry(Part.LineSegment(Vector(-38.75, 32, 0), Vector(-38.75, 36, 0)), False)
sketch7.addGeometry(Part.LineSegment(Vector(-38.75, 36, 0), Vector(-36.75, 36, 0)), False)
sketch7.addGeometry(Part.LineSegment(Vector(-36.75, 36, 0), Vector(-36.75, 32, 0)), False)
sketch7.addConstraint(Sketcher.Constraint("Tangent", 0, 2, 1, 1))
sketch7.addConstraint(Sketcher.Constraint("Tangent", 1, 2, 2, 1))
sketch7.addConstraint(Sketcher.Constraint("Tangent", 2, 2, 3, 1))
sketch7.addConstraint(Sketcher.Constraint("Tangent", 3, 2, 4, 1))
sketch7.addConstraint(Sketcher.Constraint("Tangent", 4, 2, 5, 1))
sketch7.addConstraint(Sketcher.Constraint("Tangent", 5, 2, 6, 1))
sketch7.addConstraint(Sketcher.Constraint("Tangent", 6, 2, 7, 1))
sketch7.addConstraint(Sketcher.Constraint("Tangent", 7, 2, 8, 1))
sketch7.addConstraint(Sketcher.Constraint("Tangent", 8, 2, 9, 1))
sketch7.addConstraint(Sketcher.Constraint("Tangent", 9, 2, 10, 1))
sketch7.addConstraint(Sketcher.Constraint("Tangent", 10, 2, 11, 1))
sketch7.addConstraint(Sketcher.Constraint("Tangent", 11, 2, 0, 1))
sketch7.addConstraint(Sketcher.Constraint("Coincident", 12, 2, 13, 1))
sketch7.addConstraint(Sketcher.Constraint("Coincident", 13, 2, 14, 1))
sketch7.addConstraint(Sketcher.Constraint("Coincident", 14, 2, 15, 1))
sketch7.addConstraint(Sketcher.Constraint("Coincident", 15, 2, 12, 1))
sketch7.addConstraint(Sketcher.Constraint("Coincident", 16, 2, 17, 1))
sketch7.addConstraint(Sketcher.Constraint("Coincident", 17, 2, 18, 1))
sketch7.addConstraint(Sketcher.Constraint("Coincident", 18, 2, 19, 1))
sketch7.addConstraint(Sketcher.Constraint("Coincident", 19, 2, 16, 1))
sketch7.addConstraint(Sketcher.Constraint("Coincident", 20, 2, 21, 1))
sketch7.addConstraint(Sketcher.Constraint("Coincident", 21, 2, 22, 1))
sketch7.addConstraint(Sketcher.Constraint("Coincident", 22, 2, 23, 1))
sketch7.addConstraint(Sketcher.Constraint("Coincident", 23, 2, 20, 1))
sketch7.addConstraint(Sketcher.Constraint("Horizontal", 0))
sketch7.addConstraint(Sketcher.Constraint("Vertical", 2))
sketch7.addConstraint(Sketcher.Constraint("Horizontal", 6))
sketch7.addConstraint(Sketcher.Constraint("Vertical", 10))
sketch7.addConstraint(Sketcher.Constraint("Horizontal", 12))
sketch7.addConstraint(Sketcher.Constraint("Vertical", 13))
sketch7.addConstraint(Sketcher.Constraint("Horizontal", 14))
sketch7.addConstraint(Sketcher.Constraint("Vertical", 15))
sketch7.addConstraint(Sketcher.Constraint("Horizontal", 16))
sketch7.addConstraint(Sketcher.Constraint("Vertical", 17))
sketch7.addConstraint(Sketcher.Constraint("Horizontal", 18))
sketch7.addConstraint(Sketcher.Constraint("Vertical", 19))
sketch7.addConstraint(Sketcher.Constraint("Horizontal", 20))
sketch7.addConstraint(Sketcher.Constraint("Vertical", 21))
sketch7.addConstraint(Sketcher.Constraint("Horizontal", 22))
sketch7.addConstraint(Sketcher.Constraint("Vertical", 23))
sketch7.addConstraint(Sketcher.Constraint("Equal", 3, 5))
sketch7.addConstraint(Sketcher.Constraint("Equal", 5, 7))
sketch7.addConstraint(Sketcher.Constraint("Equal", 7, 9))
sketch7.addConstraint(Sketcher.Constraint("Equal", 1, 11))
sketch7.addConstraint(Sketcher.Constraint("Perpendicular", 4, 8))
sketch7.addConstraint(Sketcher.Constraint("Horizontal", 3, 3, 9, 3))
sketch7.addConstraint(Sketcher.Constraint("Horizontal", 4, 2, 7, 2))
sketch7.addConstraint(Sketcher.Constraint("Horizontal", 15, 2, 16, 2))
sketch7.addConstraint(Sketcher.Constraint("Horizontal", 14, 2, 17, 2))
sketch7.addConstraint(Sketcher.Constraint("Horizontal", 18, 2, 20, 2))
sketch7.addConstraint(Sketcher.Constraint("Equal", 14, 16))
sketch7.addConstraint(Sketcher.Constraint("Equal", 18, 20))
sketch7.addConstraint(Sketcher.Constraint("Equal", 19, 21))
sketch7.addConstraint(Sketcher.Constraint("Radius", 1, 4.0))
sketch7.addConstraint(Sketcher.Constraint("Radius", 3, 2.0))
sketch7.addConstraint(Sketcher.Constraint("DistanceX", 0, 1, 0, 2, 15.0))
sketch7.addConstraint(Sketcher.Constraint("DistanceX", 12, 2, 12, 1, 2.0))
sketch7.addConstraint(Sketcher.Constraint("DistanceY", 13, 1, 13, 2, 4.0))
sketch7.addConstraint(Sketcher.Constraint("DistanceY", -1, 1, 1, 3, 27.0))
sketch7.addConstraint(Sketcher.Constraint("DistanceY", -1, 1, 12, 2, 28.0))
sketch7.addConstraint(Sketcher.Constraint("DistanceX", 14, 2, 20, 2, 5.0))
sketch7.addConstraint(Sketcher.Constraint("DistanceX", 20, 2, 17, 2, 7.0))
sketch7.addConstraint(Sketcher.Constraint("DistanceY", -1, 1, 5, 3, 36.8))
sketch7.addConstraint(Sketcher.Constraint("DistanceX", 12, 2, 11, 3, 0.5))
sketch7.addConstraint(Sketcher.Constraint("DistanceX", 1, 3, -1, 1, 30.25))
sketch7.addConstraint(Sketcher.Constraint("DistanceX", 6, 2, 6, 1, 9.343146))
pad4 = body3.newObject("PartDesign::Pad", "Pad003")
pad4.Profile = sketch7
pad4.Length = 8
pad4.Reversed = True
doc.recompute()

body4 = doc.addObject("PartDesign::Body", "Body003")
body4.BaseFeature = body3
boolean = body.newObject("PartDesign::Boolean", "Boolean")
boolean.Type = "Cut"
boolean.addObjects([body4])
doc.recompute()

# Sketch on YZ plane
sketch8 = body.newObject("Sketcher::SketchObject", "Sketch007")
sketch8.AttachmentSupport = (doc.getObject("YZ_Plane"), [""])
sketch8.MapMode = "FlatFace"
sketch8.AttachmentOffset = App.Placement(Vector(0, 0, -67.75), App.Rotation())
sketch8.addGeometry(Part.Circle(Vector(230, -9.5, 0), Vector(0, 0, 1), 2.25), False)
sketch8.addGeometry(Part.Circle(Vector(80, -9.5, 0), Vector(0, 0, 1), 2.25), False)
sketch8.addConstraint(Sketcher.Constraint("Equal", 0, 1))
sketch8.addConstraint(Sketcher.Constraint("Horizontal", 0, 3, 1, 3))
sketch8.addConstraint(Sketcher.Constraint("Diameter", 0, 4.5))
sketch8.addConstraint(Sketcher.Constraint("DistanceX", -1, 1, 0, 3, 230.0))
sketch8.addConstraint(Sketcher.Constraint("DistanceX", -1, 1, 1, 3, 80.0))
sketch8.addConstraint(Sketcher.Constraint("DistanceY", 0, 3, -1, 1, 9.5))
pocket4 = body.newObject("PartDesign::Pocket", "Pocket003")
pocket4.Profile = sketch8
pocket4.Length = 5
pocket4.Reversed = True
body2.AllowCompound = True
doc.recompute()

boolean2 = body2.newObject("PartDesign::Boolean", "Boolean001")
boolean2.Type = "Cut"
boolean2.addObjects([body3])
body5 = doc.addObject("PartDesign::Body", "Body004")

# Sketch on XY plane
sketch9 = body5.newObject("Sketcher::SketchObject", "Sketch008")
sketch9.AttachmentSupport = (doc.getObject("XY_Plane004"), [""])
sketch9.MapMode = "FlatFace"
sketch9.AttachmentOffset = App.Placement(Vector(0, 0, 23), App.Rotation())
sketch9.addGeometry(Part.LineSegment(Vector(-14.669383, 38.8, 0), Vector(-14.669383, 23, 0)), False)
sketch9.addGeometry(Part.LineSegment(Vector(-14.669383, 23, 0), Vector(-7.713563, 23, 0)), False)
sketch9.addGeometry(Part.LineSegment(Vector(-7.713563, 23, 0), Vector(-7.713563, 38.8, 0)), False)
sketch9.addGeometry(Part.LineSegment(Vector(-7.713563, 38.8, 0), Vector(-14.669383, 38.8, 0)), False)
sketch9.addConstraint(Sketcher.Constraint("Coincident", 0, 2, 1, 1))
sketch9.addConstraint(Sketcher.Constraint("Coincident", 1, 2, 2, 1))
sketch9.addConstraint(Sketcher.Constraint("Coincident", 2, 2, 3, 1))
sketch9.addConstraint(Sketcher.Constraint("Coincident", 3, 2, 0, 1))
sketch9.addConstraint(Sketcher.Constraint("Vertical", 0))
sketch9.addConstraint(Sketcher.Constraint("Horizontal", 1))
sketch9.addConstraint(Sketcher.Constraint("Vertical", 2))
sketch9.addConstraint(Sketcher.Constraint("Horizontal", 3))
sketch9.addConstraint(Sketcher.Constraint("DistanceY", 0, 2, 0, 1, 15.8))
sketch9.addConstraint(Sketcher.Constraint("DistanceY", -1, 1, 0, 2, 23.0))
sketch9.addConstraint(Sketcher.Constraint("DistanceX", 1, 1, 1, 2, 6.95582))
sketch9.addConstraint(Sketcher.Constraint("DistanceX", 0, 2, -1, 1, 14.669383))
pad5 = body5.newObject("PartDesign::Pad", "Pad004")
pad5.Profile = sketch9
pad5.Length = 5

# Sketch on YZ plane
sketch10 = body5.newObject("Sketcher::SketchObject", "Sketch009")
sketch10.AttachmentSupport = (doc.getObject("YZ_Plane004"), [""])
sketch10.MapMode = "FlatFace"
sketch10.AttachmentOffset = App.Placement(Vector(0, 0, -7.713563), App.Rotation())
sketch10.addGeometry(Part.LineSegment(Vector(38.8, 28, 0), Vector(23, 28, 0)), False)
sketch10.addGeometry(Part.LineSegment(Vector(23, 28, 0), Vector(23, 23.7, 0)), False)
sketch10.addGeometry(Part.ArcOfCircle(Part.Circle(Vector(24.975649, 47.618545, 0), Vector(0, 0, 1), 24), math.radians(-94.721858), math.radians(-54.829282)), False)
sketch10.addConstraint(Sketcher.Constraint("Coincident", 0, 2, 1, 1))
sketch10.addConstraint(Sketcher.Constraint("Coincident", 1, 2, 2, 1))
sketch10.addConstraint(Sketcher.Constraint("Coincident", 2, 2, 0, 1))
sketch10.addConstraint(Sketcher.Constraint("Horizontal", 0))
sketch10.addConstraint(Sketcher.Constraint("Vertical", 1))
sketch10.addConstraint(Sketcher.Constraint("Radius", 2, 24.0))
sketch10.addConstraint(Sketcher.Constraint("DistanceX", 0, 2, 0, 1, 15.8))
sketch10.addConstraint(Sketcher.Constraint("DistanceY", 1, 2, 1, 1, 4.3))
sketch10.addConstraint(Sketcher.Constraint("DistanceX", -1, 1, 0, 2, 23.0))
sketch10.addConstraint(Sketcher.Constraint("DistanceY", -1, 1, 0, 2, 28.0))
pocket5 = body5.newObject("PartDesign::Pocket", "Pocket004")
pocket5.Profile = sketch10
pocket5.Type = "ThroughAll"
doc.recompute()

fillet2 = body5.newObject("PartDesign::Fillet", "Fillet001")
fillet2.Base = (pocket5, edges_at(pocket5, [(-11.191, 38.8, 28)]))
fillet2.Radius = 2

doc.recompute()
